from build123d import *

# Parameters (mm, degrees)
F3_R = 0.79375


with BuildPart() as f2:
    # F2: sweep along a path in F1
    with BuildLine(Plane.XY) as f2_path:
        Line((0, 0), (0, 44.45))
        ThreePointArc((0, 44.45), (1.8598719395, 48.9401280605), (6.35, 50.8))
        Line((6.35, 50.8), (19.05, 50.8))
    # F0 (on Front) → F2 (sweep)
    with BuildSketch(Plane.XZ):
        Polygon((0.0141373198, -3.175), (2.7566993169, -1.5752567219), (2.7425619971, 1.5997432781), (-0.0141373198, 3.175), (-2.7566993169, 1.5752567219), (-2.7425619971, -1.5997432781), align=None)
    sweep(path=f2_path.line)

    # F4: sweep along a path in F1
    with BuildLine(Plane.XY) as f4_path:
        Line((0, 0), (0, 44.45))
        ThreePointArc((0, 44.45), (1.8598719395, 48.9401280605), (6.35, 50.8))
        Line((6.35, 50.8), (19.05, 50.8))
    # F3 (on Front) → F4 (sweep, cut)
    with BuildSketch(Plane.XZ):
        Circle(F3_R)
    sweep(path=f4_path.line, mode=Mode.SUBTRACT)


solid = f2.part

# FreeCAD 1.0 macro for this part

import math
import FreeCAD as App
import Part
import Sketcher
Q = App.Units.Quantity


def add_polygon(sketch, points):
    """Adds a closed chain of lines whose ends are joined by coincident constraints."""
    first, n = sketch.GeometryCount, len(points)
    for a, b in zip(points, points[1:] + points[:1]):
        sketch.addGeometry(Part.LineSegment(App.Vector(*a, 0), App.Vector(*b, 0)), False)
    for i in range(n):
        sketch.addConstraint(Sketcher.Constraint("Coincident", first + i, 2, first + (i + 1) % n, 1))

doc = App.newDocument("Part")
body = doc.addObject("PartDesign::Body", "Body")

# Sketch on XZ plane
sketch1 = doc.addObject("Sketcher::SketchObject", "Sketch")
body.addObject(sketch1)
sketch1.AttachmentSupport = (doc.XZ_Plane, [""])
sketch1.MapMode = "FlatFace"
add_polygon(sketch1, [(0, -3.2), (2.8, -1.6), (2.7, 1.6), (0, 3.2), (-2.8, 1.6), (-2.7, -1.6)])  # lines 0-5
sketch1.addConstraint(Sketcher.Constraint("Symmetric", 0, 2, 3, 2, -1, 1))
sketch1.addConstraint(Sketcher.Constraint("Symmetric", 1, 2, 4, 2, -1, 1))
sketch1.addConstraint(Sketcher.Constraint("Symmetric", 2, 2, 5, 2, -1, 1))
sketch1.addConstraint(Sketcher.Constraint("Equal", 0, 1))
sketch1.addConstraint(Sketcher.Constraint("Equal", 1, 2))
sketch1.addConstraint(Sketcher.Constraint("DistanceY", 5, 2, 2, 2, Q("0.25 in")))
sketch1.addConstraint(Sketcher.Constraint("DistanceY", 0, 2, 1, 2, Q("0.125 in")))
sketch1.addConstraint(Sketcher.Constraint("DistanceX", -1, 1, 0, 2, Q("2.756699 mm")))
sketch1.addConstraint(Sketcher.Constraint("DistanceX", 2, 2, 1, 2, Q("2.756699 mm")))

# Sketch on XY plane
sketch2 = doc.addObject("Sketcher::SketchObject", "Sketch001")
body.addObject(sketch2)
sketch2.AttachmentSupport = (doc.XY_Plane, [""])
sketch2.MapMode = "FlatFace"
sketch2.addGeometry(Part.LineSegment(App.Vector(0, 0, 0), App.Vector(0, 44, 0)), False)
sketch2.addGeometry(Part.ArcOfCircle(Part.Circle(App.Vector(6, 44, 0), App.Vector(0, 0, 1), 6), math.radians(90), math.radians(180)), False)
sketch2.addGeometry(Part.LineSegment(App.Vector(6, 51, 0), App.Vector(19, 51, 0)), False)
sketch2.addConstraint(Sketcher.Constraint("Tangent", 0, 2, 1, 2))
sketch2.addConstraint(Sketcher.Constraint("Tangent", 1, 1, 2, 1))
sketch2.addConstraint(Sketcher.Constraint("Vertical", 0))
sketch2.addConstraint(Sketcher.Constraint("Horizontal", 2))
sketch2.addConstraint(Sketcher.Constraint("Coincident", 0, 1, -1, 1))
sketch2.addConstraint(Sketcher.Constraint("Radius", 1, Q("0.25 in")))
sketch2.addConstraint(Sketcher.Constraint("DistanceX", 2, 1, 2, 2, Q("0.5 in")))
sketch2.addConstraint(Sketcher.Constraint("DistanceY", -1, 1, 1, 1, Q("2 in")))
doc.recompute()

additivepipe = doc.addObject("PartDesign::AdditivePipe", "AdditivePipe")
body.addObject(additivepipe)
additivepipe.Profile = sketch1
additivepipe.Spine = (sketch2, ["Edge1", "Edge2", "Edge3"])

# Sketch on XZ plane
sketch3 = doc.addObject("Sketcher::SketchObject", "Sketch002")
body.addObject(sketch3)
sketch3.AttachmentSupport = (doc.XZ_Plane, [""])
sketch3.MapMode = "FlatFace"
sketch3.addGeometry(Part.Circle(App.Vector(0, 0, 0), App.Vector(0, 0, 1), 0.8), False)
sketch3.addConstraint(Sketcher.Constraint("Coincident", 0, 3, -1, 1))
sketch3.addConstraint(Sketcher.Constraint("Diameter", 0, Q("0.0625 in")))

# Sketch on XY plane
sketch4 = doc.addObject("Sketcher::SketchObject", "Sketch003")
body.addObject(sketch4)
sketch4.AttachmentSupport = (doc.XY_Plane, [""])
sketch4.MapMode = "FlatFace"
sketch4.addGeometry(Part.LineSegment(App.Vector(0, 0, 0), App.Vector(0, 44, 0)), False)
sketch4.addGeometry(Part.ArcOfCircle(Part.Circle(App.Vector(6, 44, 0), App.Vector(0, 0, 1), 6), math.radians(90), math.radians(180)), False)
sketch4.addGeometry(Part.LineSegment(App.Vector(6, 51, 0), App.Vector(19, 51, 0)), False)
sketch4.addConstraint(Sketcher.Constraint("Tangent", 0, 2, 1, 2))
sketch4.addConstraint(Sketcher.Constraint("Tangent", 1, 1, 2, 1))
sketch4.addConstraint(Sketcher.Constraint("Vertical", 0))
sketch4.addConstraint(Sketcher.Constraint("Horizontal", 2))
sketch4.addConstraint(Sketcher.Constraint("Coincident", 0, 1, -1, 1))
sketch4.addConstraint(Sketcher.Constraint("Radius", 1, Q("0.25 in")))
sketch4.addConstraint(Sketcher.Constraint("DistanceX", 2, 1, 2, 2, Q("0.5 in")))
sketch4.addConstraint(Sketcher.Constraint("DistanceY", -1, 1, 1, 1, Q("2 in")))
doc.recompute()

subtractivepipe = doc.addObject("PartDesign::SubtractivePipe", "SubtractivePipe")
body.addObject(subtractivepipe)
subtractivepipe.Profile = sketch3
subtractivepipe.Spine = (sketch4, ["Edge1", "Edge2", "Edge3"])

doc.recompute()
